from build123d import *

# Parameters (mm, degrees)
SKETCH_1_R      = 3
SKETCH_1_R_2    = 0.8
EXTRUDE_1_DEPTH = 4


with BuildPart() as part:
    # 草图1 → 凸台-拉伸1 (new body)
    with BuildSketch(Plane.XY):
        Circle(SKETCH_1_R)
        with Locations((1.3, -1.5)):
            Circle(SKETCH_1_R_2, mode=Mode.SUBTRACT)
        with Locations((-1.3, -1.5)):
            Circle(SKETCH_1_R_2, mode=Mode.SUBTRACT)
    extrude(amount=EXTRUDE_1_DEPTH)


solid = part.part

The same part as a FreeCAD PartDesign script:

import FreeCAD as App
import Part
import Sketcher

V = App.Vector
Q = App.Units.Quantity

doc = App.newDocument("Part")
body = doc.addObject("PartDesign::Body", "Body")

# Sketch on XY plane
sketch1 = body.newObject("Sketcher::SketchObject", "Sketch")
sketch1.AttachmentSupport = (doc.getObject("XY_Plane"), [""])
sketch1.MapMode = "FlatFace"
sketch1.addGeometry([
    Part.Circle(V(0, 0, 0), V(0, 0, 1), 3),
    Part.Circle(V(-1.3, -1.5, 0), V(0, 0, 1), 0.8),
    Part.Circle(V(1.3, -1.5, 0), V(0, 0, 1), 0.8),
], False)
sketch1.addConstraint([
    Sketcher.Constraint("Coincident", 0, 3, -1, 1),
    Sketcher.Constraint("Equal", 1, 2),
    Sketcher.Constraint("Symmetric", 1, 3, 2, 3, -2),
    Sketcher.Constraint("Diameter", 0, Q("6 mm")),
    Sketcher.Constraint("Diameter", 1, Q("1.6 mm")),
    Sketcher.Constraint("DistanceX", 1, 3, -1, 1, Q("1.3 mm")),
    Sketcher.Constraint("DistanceY", 1, 3, -1, 1, Q("1.5 mm")),
])
pad1 = body.newObject("PartDesign::Pad", "Pad")
pad1.Profile = sketch1
pad1.Length = 4

doc.recompute()
